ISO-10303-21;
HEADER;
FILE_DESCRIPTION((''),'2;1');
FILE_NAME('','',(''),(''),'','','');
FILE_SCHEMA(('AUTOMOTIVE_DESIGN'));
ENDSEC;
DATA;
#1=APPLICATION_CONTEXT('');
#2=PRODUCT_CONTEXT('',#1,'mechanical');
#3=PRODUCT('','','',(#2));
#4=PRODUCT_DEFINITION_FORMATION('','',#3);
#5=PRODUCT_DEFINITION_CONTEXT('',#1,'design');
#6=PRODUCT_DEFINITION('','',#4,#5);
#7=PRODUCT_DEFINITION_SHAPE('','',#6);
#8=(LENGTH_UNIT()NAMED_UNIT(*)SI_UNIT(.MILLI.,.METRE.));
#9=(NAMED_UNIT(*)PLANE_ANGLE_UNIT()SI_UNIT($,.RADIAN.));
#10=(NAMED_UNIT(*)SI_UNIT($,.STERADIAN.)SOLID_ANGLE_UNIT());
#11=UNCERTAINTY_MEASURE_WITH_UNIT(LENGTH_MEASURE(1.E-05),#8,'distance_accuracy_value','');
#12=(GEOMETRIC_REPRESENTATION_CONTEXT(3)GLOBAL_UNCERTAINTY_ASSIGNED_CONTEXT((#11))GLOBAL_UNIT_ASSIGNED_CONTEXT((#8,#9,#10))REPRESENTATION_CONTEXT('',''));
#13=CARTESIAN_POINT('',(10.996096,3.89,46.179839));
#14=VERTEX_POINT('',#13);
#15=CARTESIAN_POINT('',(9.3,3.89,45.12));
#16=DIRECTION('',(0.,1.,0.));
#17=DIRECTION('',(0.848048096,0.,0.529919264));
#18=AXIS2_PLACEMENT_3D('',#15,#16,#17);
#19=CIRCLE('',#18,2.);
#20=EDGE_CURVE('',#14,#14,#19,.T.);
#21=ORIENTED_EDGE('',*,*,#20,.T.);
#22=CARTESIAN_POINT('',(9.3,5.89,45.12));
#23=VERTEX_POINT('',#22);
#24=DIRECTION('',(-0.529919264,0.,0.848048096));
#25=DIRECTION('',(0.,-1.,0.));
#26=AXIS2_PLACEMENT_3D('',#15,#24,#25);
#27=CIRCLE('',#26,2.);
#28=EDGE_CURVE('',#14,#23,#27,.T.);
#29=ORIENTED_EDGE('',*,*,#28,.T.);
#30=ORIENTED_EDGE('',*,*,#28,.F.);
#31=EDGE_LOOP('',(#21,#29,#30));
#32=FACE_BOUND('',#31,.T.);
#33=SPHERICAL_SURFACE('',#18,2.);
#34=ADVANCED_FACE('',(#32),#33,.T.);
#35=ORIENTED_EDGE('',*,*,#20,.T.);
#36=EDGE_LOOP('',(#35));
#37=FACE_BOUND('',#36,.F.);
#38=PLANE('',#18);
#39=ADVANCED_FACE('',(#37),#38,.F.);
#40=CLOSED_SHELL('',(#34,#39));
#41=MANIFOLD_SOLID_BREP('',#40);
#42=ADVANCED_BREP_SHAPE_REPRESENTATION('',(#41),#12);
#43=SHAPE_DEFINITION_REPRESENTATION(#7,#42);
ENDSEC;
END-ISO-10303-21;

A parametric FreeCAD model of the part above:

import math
import FreeCAD as App
import Part
import Sketcher
from FreeCAD import Vector


def add_polygon(sketch, points):
    """Adds a closed chain of lines whose ends are joined by coincident constraints."""
    first, n = sketch.GeometryCount, len(points)
    for a, b in zip(points, points[1:] + points[:1]):
        sketch.addGeometry(Part.LineSegment(App.Vector(*a, 0), App.Vector(*b, 0)), False)
    for i in range(n):
        sketch.addConstraint(Sketcher.Constraint("Coincident", first + i, 2, first + (i + 1) % n, 1))

doc = App.newDocument("Part")
body = doc.addObject("PartDesign::Body", "Body")

# Sketch on XY plane
sketch1 = body.newObject("Sketcher::SketchObject", "Sketch")
sketch1.AttachmentSupport = (doc.getObject("XY_Plane"), [""])
sketch1.MapMode = "FlatFace"
sketch1.AttachmentOffset = App.Placement(Vector(0, 0, -10), App.Rotation())
add_polygon(sketch1, [(-5, 5), (-5, -5), (5, -5), (5, 5)])  # lines 0-3
sketch1.addConstraint(Sketcher.Constraint("Vertical", 0))
sketch1.addConstraint(Sketcher.Constraint("Horizontal", 1))
sketch1.addConstraint(Sketcher.Constraint("Vertical", 2))
sketch1.addConstraint(Sketcher.Constraint("Horizontal", 3))
sketch1.addConstraint(Sketcher.Constraint("Symmetric", 0, 2, 2, 2, -1, 1))
sketch1.addConstraint(Sketcher.Constraint("Equal", 3, 0))
sketch1.addConstraint(Sketcher.Constraint("DistanceX", 1, 1, 1, 2, 10.0))
pad1 = body.newObject("PartDesign::Pad", "Pad")
pad1.Profile = sketch1
pad1.Length = 10
body2 = doc.addObject("PartDesign::Body", "Body001")

# Sketch on XZ plane
sketch2 = body2.newObject("Sketcher::SketchObject", "Sketch001")
sketch2.AttachmentSupport = (doc.getObject("XZ_Plane001"), [""])
sketch2.MapMode = "FlatFace"
sketch2.addGeometry(Part.ArcOfCircle(Part.Circle(Vector(0, 0, 0), Vector(0, 0, 1), 2), math.radians(-90), math.radians(90)), False)
sketch2.addGeometry(Part.LineSegment(Vector(0, 2, 0), Vector(0, -2, 0)), False)
sketch2.addConstraint(Sketcher.Constraint("Coincident", 0, 1, 1, 2))
sketch2.addConstraint(Sketcher.Constraint("Coincident", 1, 1, 0, 2))
sketch2.addConstraint(Sketcher.Constraint("Vertical", 1))
sketch2.addConstraint(Sketcher.Constraint("Coincident", 0, 3, -1, 1))
sketch2.addConstraint(Sketcher.Constraint("PointOnObject", 0, 1, -2))
sketch2.addConstraint(Sketcher.Constraint("Radius", 0, 2.0))
revolution = body2.newObject("PartDesign::Revolution", "Revolution")
revolution.Profile = sketch2
revolution.ReferenceAxis = (sketch2, ["V_Axis"])
revolution.Angle = 360
doc.recompute()

boolean = body2.newObject("PartDesign::Boolean", "Boolean")
boolean.Type = "Cut"
boolean.addObjects([body])
body3 = doc.addObject("PartDesign::Body", "Body002")
doc.recompute()

body2.Placement = App.Placement(Vector(0, 0, 0), App.Rotation(Vector(1, 0, 0), 270))
boolean2 = body3.newObject("PartDesign::Boolean", "Boolean001")
boolean2.Type = "Fuse"
boolean2.addObjects([body2])
body4 = doc.addObject("PartDesign::Body", "Body003")
doc.recompute()

body3.Placement = App.Placement(Vector(0, 0, 0), App.Rotation(Vector(0, 1, 0), 328))
boolean3 = body4.newObject("PartDesign::Boolean", "Boolean002")
boolean3.Type = "Fuse"
boolean3.addObjects([body3])
body5 = doc.addObject("PartDesign::Body", "Body004")
doc.recompute()

body4.Placement = App.Placement(Vector(9.3, 3.89, 45.12), App.Rotation(Vector(0, 0, 1), 0))
boolean4 = body5.newObject("PartDesign::Boolean", "Boolean003")
boolean4.Type = "Fuse"
boolean4.addObjects([body4])

doc.recompute()
